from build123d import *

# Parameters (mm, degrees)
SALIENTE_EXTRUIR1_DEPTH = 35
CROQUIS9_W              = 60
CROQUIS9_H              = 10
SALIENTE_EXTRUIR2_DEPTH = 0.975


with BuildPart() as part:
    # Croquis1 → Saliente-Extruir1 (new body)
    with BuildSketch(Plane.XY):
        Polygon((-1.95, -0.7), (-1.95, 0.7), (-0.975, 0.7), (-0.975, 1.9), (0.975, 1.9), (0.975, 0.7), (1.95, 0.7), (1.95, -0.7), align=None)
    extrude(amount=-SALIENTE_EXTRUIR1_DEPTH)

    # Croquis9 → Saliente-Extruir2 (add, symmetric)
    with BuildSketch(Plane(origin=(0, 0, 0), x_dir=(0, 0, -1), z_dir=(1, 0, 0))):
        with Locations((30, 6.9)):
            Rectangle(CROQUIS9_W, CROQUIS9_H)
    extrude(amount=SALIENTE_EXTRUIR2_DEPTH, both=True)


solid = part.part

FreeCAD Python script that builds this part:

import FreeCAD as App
import Part
import Sketcher
from FreeCAD import Vector
Q = App.Units.Quantity

doc = App.newDocument("Part")
body = doc.addObject("PartDesign::Body", "Body")

# Sketch on XY plane
sketch1 = body.newObject("Sketcher::SketchObject", "Sketch")
sketch1.AttachmentSupport = (doc.getObject("XY_Plane"), [""])
sketch1.MapMode = "FlatFace"
sketch1.addGeometry([
    Part.LineSegment(Vector(-1.9, 0.7, 0), Vector(-1.9, -0.7, 0)),  # 0
    Part.LineSegment(Vector(-1.9, -0.7, 0), Vector(1.9, -0.7, 0)),  # 1
    Part.LineSegment(Vector(1.9, -0.7, 0), Vector(1.9, 0.7, 0)),  # 2
    Part.LineSegment(Vector(1.9, 0.7, 0), Vector(1, 0.7, 0)),  # 3
    Part.LineSegment(Vector(1, 0.7, 0), Vector(1, 1.9, 0)),  # 4
    Part.LineSegment(Vector(1, 1.9, 0), Vector(-1, 1.9, 0)),  # 5
    Part.LineSegment(Vector(-1, 1.9, 0), Vector(-1, 0.7, 0)),  # 6
    Part.LineSegment(Vector(-1, 0.7, 0), Vector(-1.9, 0.7, 0)),  # 7
], False)
sketch1.addConstraint([
    Sketcher.Constraint("Coincident", 0, 2, 1, 1),
    Sketcher.Constraint("Coincident", 1, 2, 2, 1),
    Sketcher.Constraint("Coincident", 2, 2, 3, 1),
    Sketcher.Constraint("Coincident", 3, 2, 4, 1),
    Sketcher.Constraint("Coincident", 4, 2, 5, 1),
    Sketcher.Constraint("Coincident", 5, 2, 6, 1),
    Sketcher.Constraint("Coincident", 6, 2, 7, 1),
    Sketcher.Constraint("Coincident", 7, 2, 0, 1),
    Sketcher.Constraint("Vertical", 0),
    Sketcher.Constraint("Horizontal", 1),
    Sketcher.Constraint("Vertical", 2),
    Sketcher.Constraint("Horizontal", 3),
    Sketcher.Constraint("Vertical", 4),
    Sketcher.Constraint("Horizontal", 5),
    Sketcher.Constraint("Vertical", 6),
    Sketcher.Constraint("Horizontal", 7),
    Sketcher.Constraint("Symmetric", 0, 2, 2, 2, -1, 1),
    Sketcher.Constraint("Symmetric", 3, 2, 6, 2, -2),
    Sketcher.Constraint("DistanceX", 1, 1, 1, 2, Q("3.9 mm")),
    Sketcher.Constraint("DistanceY", 0, 2, 0, 1, Q("1.4 mm")),
    Sketcher.Constraint("DistanceY", 4, 1, 4, 2, Q("1.2 mm")),
    Sketcher.Constraint("DistanceX", 5, 2, 5, 1, Q("1.95 mm")),
])
pad1 = body.newObject("PartDesign::Pad", "Pad")
pad1.Profile = sketch1
pad1.Length = 35
pad1.Reversed = True

# Sketch on YZ plane
sketch2 = body.newObject("Sketcher::SketchObject", "Sketch001")
sketch2.AttachmentSupport = (doc.getObject("YZ_Plane"), [""])
sketch2.MapMode = "FlatFace"
sketch2.addGeometry([
    Part.LineSegment(Vector(12, 0, 0), Vector(2, 0, 0)),
    Part.LineSegment(Vector(2, 0, 0), Vector(2, -60, 0)),
    Part.LineSegment(Vector(2, -60, 0), Vector(12, -60, 0)),
    Part.LineSegment(Vector(12, -60, 0), Vector(12, 0, 0)),
], False)
sketch2.addConstraint([
    Sketcher.Constraint("Coincident", 0, 2, 1, 1),
    Sketcher.Constraint("Coincident", 1, 2, 2, 1),
    Sketcher.Constraint("Coincident", 2, 2, 3, 1),
    Sketcher.Constraint("Coincident", 3, 2, 0, 1),
    Sketcher.Constraint("Horizontal", 0),
    Sketcher.Constraint("Vertical", 1),
    Sketcher.Constraint("Horizontal", 2),
    Sketcher.Constraint("Vertical", 3),
    Sketcher.Constraint("PointOnObject", 0, 2, -1),
    Sketcher.Constraint("DistanceX", 0, 2, 0, 1, Q("10 mm")),
    Sketcher.Constraint("DistanceY", 1, 2, 1, 1, Q("60 mm")),
    Sketcher.Constraint("DistanceX", -1, 1, 0, 2, Q("1.9 mm")),
])
pad2 = body.newObject("PartDesign::Pad", "Pad001")
pad2.Profile = sketch2
pad2.Length = 1.95
pad2.Midplane = True

doc.recompute()
